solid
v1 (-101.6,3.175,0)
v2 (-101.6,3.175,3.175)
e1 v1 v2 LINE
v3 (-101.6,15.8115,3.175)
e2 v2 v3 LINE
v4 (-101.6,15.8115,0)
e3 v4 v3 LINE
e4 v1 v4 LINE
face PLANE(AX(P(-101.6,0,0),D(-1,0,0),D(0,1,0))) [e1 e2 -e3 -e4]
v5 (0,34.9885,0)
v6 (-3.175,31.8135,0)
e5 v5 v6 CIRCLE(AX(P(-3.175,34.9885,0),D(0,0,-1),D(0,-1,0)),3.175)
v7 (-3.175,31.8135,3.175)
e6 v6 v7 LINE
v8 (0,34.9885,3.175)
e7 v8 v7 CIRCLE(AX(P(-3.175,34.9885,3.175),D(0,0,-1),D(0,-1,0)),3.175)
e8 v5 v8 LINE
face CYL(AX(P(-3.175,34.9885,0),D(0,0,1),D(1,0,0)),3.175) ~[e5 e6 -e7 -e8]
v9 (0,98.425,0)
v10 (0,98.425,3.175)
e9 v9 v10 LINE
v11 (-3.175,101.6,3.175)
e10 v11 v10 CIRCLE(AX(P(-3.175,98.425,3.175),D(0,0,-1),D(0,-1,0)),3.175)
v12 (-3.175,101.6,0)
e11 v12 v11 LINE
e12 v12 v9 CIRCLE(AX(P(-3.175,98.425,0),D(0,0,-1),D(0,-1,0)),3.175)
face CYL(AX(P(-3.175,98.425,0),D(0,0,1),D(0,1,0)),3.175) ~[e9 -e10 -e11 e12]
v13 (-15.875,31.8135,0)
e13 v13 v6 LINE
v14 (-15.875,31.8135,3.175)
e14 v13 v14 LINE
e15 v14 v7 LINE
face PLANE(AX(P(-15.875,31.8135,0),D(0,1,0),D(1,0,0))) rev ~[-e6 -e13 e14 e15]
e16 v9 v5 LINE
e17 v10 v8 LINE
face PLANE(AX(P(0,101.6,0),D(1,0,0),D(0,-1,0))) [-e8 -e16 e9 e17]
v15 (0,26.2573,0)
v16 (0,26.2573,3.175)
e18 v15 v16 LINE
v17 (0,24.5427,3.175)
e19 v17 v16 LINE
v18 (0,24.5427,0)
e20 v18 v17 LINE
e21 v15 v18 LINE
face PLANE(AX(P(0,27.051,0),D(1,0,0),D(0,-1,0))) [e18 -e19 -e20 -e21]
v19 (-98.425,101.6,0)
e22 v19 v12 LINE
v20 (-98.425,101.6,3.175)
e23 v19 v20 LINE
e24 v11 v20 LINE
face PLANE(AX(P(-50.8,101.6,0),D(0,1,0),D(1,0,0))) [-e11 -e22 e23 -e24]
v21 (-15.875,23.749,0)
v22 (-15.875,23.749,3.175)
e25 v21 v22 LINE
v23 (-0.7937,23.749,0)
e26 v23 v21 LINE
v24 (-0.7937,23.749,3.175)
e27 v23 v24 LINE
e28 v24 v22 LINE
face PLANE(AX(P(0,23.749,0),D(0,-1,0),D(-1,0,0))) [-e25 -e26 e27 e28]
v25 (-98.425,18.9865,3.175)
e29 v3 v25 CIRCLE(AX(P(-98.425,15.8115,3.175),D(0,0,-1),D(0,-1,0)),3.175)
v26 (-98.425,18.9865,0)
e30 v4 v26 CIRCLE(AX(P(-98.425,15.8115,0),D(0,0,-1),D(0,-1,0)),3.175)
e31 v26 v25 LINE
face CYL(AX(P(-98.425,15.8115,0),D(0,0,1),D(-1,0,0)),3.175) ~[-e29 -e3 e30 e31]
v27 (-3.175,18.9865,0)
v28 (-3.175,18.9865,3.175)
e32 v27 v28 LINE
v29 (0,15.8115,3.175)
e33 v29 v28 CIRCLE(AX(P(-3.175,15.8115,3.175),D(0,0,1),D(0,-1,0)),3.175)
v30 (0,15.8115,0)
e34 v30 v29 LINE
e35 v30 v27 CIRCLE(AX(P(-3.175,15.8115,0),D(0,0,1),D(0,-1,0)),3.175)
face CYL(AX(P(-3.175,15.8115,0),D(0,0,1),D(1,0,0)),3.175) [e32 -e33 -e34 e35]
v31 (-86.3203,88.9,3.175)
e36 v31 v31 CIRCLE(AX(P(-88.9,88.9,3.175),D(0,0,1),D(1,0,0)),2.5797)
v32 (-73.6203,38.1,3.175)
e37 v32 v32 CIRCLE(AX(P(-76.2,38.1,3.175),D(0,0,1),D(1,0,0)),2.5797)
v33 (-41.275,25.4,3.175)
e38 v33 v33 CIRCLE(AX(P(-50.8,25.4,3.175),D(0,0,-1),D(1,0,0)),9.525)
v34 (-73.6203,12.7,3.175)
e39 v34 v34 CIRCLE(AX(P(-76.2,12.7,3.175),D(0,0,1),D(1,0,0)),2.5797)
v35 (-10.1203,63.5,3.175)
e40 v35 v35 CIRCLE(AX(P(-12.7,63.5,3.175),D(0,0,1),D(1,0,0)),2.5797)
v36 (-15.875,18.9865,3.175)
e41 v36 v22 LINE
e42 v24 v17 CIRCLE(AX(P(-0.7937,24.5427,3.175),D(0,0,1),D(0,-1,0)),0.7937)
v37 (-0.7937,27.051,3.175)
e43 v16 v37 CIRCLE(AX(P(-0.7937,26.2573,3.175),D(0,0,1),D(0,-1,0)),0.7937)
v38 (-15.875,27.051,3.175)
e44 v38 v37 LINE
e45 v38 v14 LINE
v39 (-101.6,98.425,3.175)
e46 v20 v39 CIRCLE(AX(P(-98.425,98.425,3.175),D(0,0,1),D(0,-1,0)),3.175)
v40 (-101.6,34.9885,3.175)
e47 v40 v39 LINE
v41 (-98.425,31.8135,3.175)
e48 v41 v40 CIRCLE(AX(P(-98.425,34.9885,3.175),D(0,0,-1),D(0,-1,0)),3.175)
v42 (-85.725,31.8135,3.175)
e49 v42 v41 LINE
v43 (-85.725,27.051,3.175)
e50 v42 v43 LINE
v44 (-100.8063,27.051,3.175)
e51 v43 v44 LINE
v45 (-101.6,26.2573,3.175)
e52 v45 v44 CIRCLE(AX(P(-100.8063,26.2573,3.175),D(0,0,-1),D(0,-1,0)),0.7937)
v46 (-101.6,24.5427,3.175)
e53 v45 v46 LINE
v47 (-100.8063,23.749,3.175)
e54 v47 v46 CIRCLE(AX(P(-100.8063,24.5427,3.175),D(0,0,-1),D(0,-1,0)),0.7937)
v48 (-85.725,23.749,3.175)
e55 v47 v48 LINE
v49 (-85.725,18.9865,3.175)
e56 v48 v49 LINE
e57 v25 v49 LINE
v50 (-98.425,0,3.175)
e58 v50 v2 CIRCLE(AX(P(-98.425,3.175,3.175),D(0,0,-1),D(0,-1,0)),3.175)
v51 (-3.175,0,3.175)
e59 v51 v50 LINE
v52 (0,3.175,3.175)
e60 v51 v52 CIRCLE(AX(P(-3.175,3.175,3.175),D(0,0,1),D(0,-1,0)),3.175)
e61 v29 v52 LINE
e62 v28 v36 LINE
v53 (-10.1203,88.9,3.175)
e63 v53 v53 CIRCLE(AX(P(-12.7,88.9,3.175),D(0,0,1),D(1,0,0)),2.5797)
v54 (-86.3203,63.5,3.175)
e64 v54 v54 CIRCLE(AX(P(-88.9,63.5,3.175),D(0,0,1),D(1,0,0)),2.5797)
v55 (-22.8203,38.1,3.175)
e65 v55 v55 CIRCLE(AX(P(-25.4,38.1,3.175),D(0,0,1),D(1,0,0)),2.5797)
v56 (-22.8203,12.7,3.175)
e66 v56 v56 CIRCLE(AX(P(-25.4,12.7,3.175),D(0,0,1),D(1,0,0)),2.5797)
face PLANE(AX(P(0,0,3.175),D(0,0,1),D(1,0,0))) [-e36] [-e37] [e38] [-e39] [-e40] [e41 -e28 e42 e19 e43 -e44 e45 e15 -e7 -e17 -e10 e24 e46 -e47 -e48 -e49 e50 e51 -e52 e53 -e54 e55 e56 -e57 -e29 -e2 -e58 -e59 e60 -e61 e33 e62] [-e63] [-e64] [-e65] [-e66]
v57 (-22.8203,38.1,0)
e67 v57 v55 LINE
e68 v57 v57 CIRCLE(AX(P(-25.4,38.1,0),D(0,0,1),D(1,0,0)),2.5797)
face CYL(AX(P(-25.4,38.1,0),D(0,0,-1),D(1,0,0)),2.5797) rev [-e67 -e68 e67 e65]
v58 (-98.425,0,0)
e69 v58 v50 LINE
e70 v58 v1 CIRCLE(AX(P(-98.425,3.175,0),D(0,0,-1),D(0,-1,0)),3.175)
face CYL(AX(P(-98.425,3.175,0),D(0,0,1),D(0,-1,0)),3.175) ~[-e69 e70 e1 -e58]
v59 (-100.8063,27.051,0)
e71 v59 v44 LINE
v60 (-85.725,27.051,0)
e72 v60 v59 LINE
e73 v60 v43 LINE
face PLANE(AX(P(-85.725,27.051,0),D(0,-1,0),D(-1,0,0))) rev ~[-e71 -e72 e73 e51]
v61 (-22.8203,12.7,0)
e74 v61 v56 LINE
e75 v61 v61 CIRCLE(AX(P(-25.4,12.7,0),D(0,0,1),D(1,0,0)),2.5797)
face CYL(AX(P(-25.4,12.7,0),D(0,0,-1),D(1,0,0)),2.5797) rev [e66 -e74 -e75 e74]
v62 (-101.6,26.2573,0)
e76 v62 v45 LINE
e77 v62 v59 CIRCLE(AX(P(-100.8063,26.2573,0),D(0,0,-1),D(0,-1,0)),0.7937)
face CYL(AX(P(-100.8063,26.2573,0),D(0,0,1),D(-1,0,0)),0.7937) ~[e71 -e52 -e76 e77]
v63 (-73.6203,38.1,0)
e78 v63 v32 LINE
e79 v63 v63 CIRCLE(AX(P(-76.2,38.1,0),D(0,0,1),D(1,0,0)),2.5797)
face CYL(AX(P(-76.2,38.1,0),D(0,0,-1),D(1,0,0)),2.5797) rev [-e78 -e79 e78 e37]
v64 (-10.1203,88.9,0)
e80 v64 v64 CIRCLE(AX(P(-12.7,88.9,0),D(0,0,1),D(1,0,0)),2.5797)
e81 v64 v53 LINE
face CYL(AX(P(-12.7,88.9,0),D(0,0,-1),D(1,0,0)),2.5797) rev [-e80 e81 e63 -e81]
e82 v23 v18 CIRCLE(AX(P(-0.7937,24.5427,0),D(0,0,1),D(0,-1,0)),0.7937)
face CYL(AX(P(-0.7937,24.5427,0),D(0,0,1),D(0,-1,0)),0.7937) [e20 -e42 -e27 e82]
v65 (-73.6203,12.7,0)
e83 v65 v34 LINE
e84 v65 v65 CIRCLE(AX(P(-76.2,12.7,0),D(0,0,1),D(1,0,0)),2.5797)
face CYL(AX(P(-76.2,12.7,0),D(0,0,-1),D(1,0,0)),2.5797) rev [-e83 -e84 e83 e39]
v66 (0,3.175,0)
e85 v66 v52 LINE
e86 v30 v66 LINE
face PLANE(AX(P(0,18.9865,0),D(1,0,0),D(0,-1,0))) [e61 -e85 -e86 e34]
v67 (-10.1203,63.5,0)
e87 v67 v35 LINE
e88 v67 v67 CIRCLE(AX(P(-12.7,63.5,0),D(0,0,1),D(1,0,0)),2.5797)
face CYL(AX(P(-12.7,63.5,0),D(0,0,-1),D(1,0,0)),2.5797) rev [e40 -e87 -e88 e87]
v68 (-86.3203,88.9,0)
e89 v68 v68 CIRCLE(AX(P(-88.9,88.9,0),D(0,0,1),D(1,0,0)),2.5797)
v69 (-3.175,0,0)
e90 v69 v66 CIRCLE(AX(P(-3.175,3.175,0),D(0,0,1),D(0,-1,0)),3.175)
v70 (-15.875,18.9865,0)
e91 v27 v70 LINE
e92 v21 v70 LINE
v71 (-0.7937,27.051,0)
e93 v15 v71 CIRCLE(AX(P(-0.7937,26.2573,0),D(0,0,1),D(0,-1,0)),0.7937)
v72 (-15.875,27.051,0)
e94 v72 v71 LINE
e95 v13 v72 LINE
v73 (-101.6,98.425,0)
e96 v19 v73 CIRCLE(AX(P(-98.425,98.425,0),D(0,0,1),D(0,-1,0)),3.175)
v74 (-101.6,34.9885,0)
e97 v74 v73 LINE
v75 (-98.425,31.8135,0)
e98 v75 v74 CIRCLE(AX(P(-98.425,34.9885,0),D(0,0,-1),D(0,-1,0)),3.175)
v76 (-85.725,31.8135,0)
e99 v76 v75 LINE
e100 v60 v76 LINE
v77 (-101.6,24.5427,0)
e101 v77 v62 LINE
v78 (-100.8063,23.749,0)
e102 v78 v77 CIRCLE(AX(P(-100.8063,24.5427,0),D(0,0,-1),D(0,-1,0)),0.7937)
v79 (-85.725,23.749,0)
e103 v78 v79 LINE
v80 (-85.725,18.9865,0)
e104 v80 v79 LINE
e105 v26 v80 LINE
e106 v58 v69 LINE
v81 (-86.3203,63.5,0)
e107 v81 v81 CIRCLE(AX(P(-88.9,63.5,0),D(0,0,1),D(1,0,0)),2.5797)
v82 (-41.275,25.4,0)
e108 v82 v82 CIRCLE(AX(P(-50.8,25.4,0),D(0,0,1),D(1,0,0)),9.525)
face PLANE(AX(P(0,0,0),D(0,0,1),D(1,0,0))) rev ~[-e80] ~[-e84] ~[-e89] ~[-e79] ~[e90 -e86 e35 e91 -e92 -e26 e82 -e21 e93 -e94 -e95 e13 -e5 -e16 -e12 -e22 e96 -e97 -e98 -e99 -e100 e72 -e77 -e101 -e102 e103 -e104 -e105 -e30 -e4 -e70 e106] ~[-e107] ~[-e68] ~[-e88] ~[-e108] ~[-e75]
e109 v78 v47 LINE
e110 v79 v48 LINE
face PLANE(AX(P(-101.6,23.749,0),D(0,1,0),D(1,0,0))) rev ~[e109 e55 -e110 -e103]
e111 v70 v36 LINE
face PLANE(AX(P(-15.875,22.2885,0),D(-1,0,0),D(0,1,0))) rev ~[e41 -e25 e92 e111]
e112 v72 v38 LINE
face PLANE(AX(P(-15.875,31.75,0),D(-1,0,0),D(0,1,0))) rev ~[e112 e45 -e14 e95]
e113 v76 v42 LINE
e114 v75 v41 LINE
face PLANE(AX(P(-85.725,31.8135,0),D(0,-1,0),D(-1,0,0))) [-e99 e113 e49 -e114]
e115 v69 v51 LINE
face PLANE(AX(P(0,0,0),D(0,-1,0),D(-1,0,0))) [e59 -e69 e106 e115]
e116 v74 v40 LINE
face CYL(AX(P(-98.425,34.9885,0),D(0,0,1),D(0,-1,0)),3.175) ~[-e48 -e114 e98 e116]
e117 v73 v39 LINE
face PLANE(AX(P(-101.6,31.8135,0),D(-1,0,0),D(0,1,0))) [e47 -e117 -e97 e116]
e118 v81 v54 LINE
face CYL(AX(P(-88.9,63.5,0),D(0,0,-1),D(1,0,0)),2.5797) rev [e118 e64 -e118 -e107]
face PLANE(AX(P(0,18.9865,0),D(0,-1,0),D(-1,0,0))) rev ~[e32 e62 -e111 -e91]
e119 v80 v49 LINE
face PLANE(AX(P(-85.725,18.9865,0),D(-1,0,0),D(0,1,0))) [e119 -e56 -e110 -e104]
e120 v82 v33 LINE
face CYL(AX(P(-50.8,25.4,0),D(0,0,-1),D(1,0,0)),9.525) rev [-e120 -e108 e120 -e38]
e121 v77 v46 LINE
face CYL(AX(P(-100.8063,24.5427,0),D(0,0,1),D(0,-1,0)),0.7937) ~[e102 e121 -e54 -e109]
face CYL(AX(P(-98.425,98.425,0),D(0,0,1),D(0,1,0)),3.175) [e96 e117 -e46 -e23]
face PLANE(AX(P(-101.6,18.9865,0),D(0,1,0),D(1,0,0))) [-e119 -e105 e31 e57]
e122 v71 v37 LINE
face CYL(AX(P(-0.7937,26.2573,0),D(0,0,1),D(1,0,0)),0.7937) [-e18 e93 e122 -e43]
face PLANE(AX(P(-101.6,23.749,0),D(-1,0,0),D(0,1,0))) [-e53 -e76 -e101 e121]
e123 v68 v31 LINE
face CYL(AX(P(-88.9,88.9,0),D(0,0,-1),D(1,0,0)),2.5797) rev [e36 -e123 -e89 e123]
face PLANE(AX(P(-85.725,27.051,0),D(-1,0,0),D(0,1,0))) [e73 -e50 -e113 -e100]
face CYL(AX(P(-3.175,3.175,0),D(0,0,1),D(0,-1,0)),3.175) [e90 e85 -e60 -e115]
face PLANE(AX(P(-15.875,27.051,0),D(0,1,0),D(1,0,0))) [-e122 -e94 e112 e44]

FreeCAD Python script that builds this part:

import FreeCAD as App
import Part
import Sketcher
Q = App.Units.Quantity


def edges_at(feature, points):
    """Names of the edges that pass closest to the given points."""
    edges = feature.Shape.Edges
    near = lambda p: min(range(len(edges)), key=lambda i: edges[i].distToShape(Part.Vertex(*p))[0])
    return sorted({f"Edge{near(p) + 1}" for p in points})

doc = App.newDocument("Part")
body = doc.addObject("PartDesign::Body", "Body")

# Sketch on XY plane
sketch1 = body.newObject("Sketcher::SketchObject", "Sketch")
sketch1.AttachmentSupport = (doc.getObject("XY_Plane"), [""])
sketch1.MapMode = "FlatFace"
sketch1.addGeometry([
    Part.LineSegment(App.Vector(0, 0, 0), App.Vector(0, 18.9865, 0)),  # 0
    Part.LineSegment(App.Vector(0, 18.9865, 0), App.Vector(-15.875, 18.9865, 0)),  # 1
    Part.LineSegment(App.Vector(-15.875, 18.9865, 0), App.Vector(-15.875, 23.749, 0)),  # 2
    Part.LineSegment(App.Vector(-15.875, 23.749, 0), App.Vector(0, 23.749, 0)),  # 3
    Part.LineSegment(App.Vector(0, 23.749, 0), App.Vector(0, 27.051, 0)),  # 4
    Part.LineSegment(App.Vector(0, 27.051, 0), App.Vector(-15.875, 27.051, 0)),  # 5
    Part.LineSegment(App.Vector(-15.875, 27.051, 0), App.Vector(-15.875, 31.8135, 0)),  # 6
    Part.LineSegment(App.Vector(-15.875, 31.8135, 0), App.Vector(0, 31.8135, 0)),  # 7
    Part.LineSegment(App.Vector(0, 31.8135, 0), App.Vector(0, 101.6, 0)),  # 8
    Part.LineSegment(App.Vector(0, 101.6, 0), App.Vector(-101.6, 101.6, 0)),  # 9
    Part.LineSegment(App.Vector(-101.6, 101.6, 0), App.Vector(-101.6, 31.8135, 0)),  # 10
    Part.LineSegment(App.Vector(-101.6, 31.8135, 0), App.Vector(-85.725, 31.8135, 0)),  # 11
    Part.LineSegment(App.Vector(-85.725, 31.8135, 0), App.Vector(-85.725, 27.051, 0)),  # 12
    Part.LineSegment(App.Vector(-85.725, 27.051, 0), App.Vector(-101.6, 27.051, 0)),  # 13
    Part.LineSegment(App.Vector(-101.6, 27.051, 0), App.Vector(-101.6, 23.749, 0)),  # 14
    Part.LineSegment(App.Vector(-101.6, 23.749, 0), App.Vector(-85.725, 23.749, 0)),  # 15
    Part.LineSegment(App.Vector(-85.725, 23.749, 0), App.Vector(-85.725, 18.9865, 0)),  # 16
    Part.LineSegment(App.Vector(-85.725, 18.9865, 0), App.Vector(-101.6, 18.9865, 0)),  # 17
    Part.LineSegment(App.Vector(-101.6, 18.9865, 0), App.Vector(-101.6, 0, 0)),  # 18
    Part.LineSegment(App.Vector(-101.6, 0, 0), App.Vector(0, 0, 0)),  # 19
    Part.Circle(App.Vector(-50.8, 25.4, 0), App.Vector(0, 0, 1), 9.525),  # 20
    Part.Circle(App.Vector(-25.4, 12.7, 0), App.Vector(0, 0, 1), 2.5797),  # 21
    Part.Circle(App.Vector(-25.4, 38.1, 0), App.Vector(0, 0, 1), 2.5797),  # 22
    Part.Circle(App.Vector(-12.7, 63.5, 0), App.Vector(0, 0, 1), 2.5797),  # 23
    Part.Circle(App.Vector(-12.7, 88.9, 0), App.Vector(0, 0, 1), 2.5797),  # 24
    Part.Circle(App.Vector(-76.2, 38.1, 0), App.Vector(0, 0, 1), 2.5797),  # 25
    Part.Circle(App.Vector(-88.9, 63.5, 0), App.Vector(0, 0, 1), 2.5797),  # 26
    Part.Circle(App.Vector(-88.9, 88.9, 0), App.Vector(0, 0, 1), 2.5797),  # 27
    Part.Circle(App.Vector(-76.2, 12.7, 0), App.Vector(0, 0, 1), 2.5797),  # 28
], False)
sketch1.addConstraint([
    Sketcher.Constraint("Coincident", 0, 2, 1, 1),
    Sketcher.Constraint("Coincident", 1, 2, 2, 1),
    Sketcher.Constraint("Coincident", 2, 2, 3, 1),
    Sketcher.Constraint("Coincident", 3, 2, 4, 1),
    Sketcher.Constraint("Coincident", 4, 2, 5, 1),
    Sketcher.Constraint("Coincident", 5, 2, 6, 1),
    Sketcher.Constraint("Coincident", 6, 2, 7, 1),
    Sketcher.Constraint("Coincident", 7, 2, 8, 1),
    Sketcher.Constraint("Coincident", 8, 2, 9, 1),
    Sketcher.Constraint("Coincident", 9, 2, 10, 1),
    Sketcher.Constraint("Coincident", 10, 2, 11, 1),
    Sketcher.Constraint("Coincident", 11, 2, 12, 1),
    Sketcher.Constraint("Coincident", 12, 2, 13, 1),
    Sketcher.Constraint("Coincident", 13, 2, 14, 1),
    Sketcher.Constraint("Coincident", 14, 2, 15, 1),
    Sketcher.Constraint("Coincident", 15, 2, 16, 1),
    Sketcher.Constraint("Coincident", 16, 2, 17, 1),
    Sketcher.Constraint("Coincident", 17, 2, 18, 1),
    Sketcher.Constraint("Coincident", 18, 2, 19, 1),
    Sketcher.Constraint("Coincident", 19, 2, 0, 1),
    Sketcher.Constraint("Vertical", 0),
    Sketcher.Constraint("Horizontal", 1),
    Sketcher.Constraint("Vertical", 2),
    Sketcher.Constraint("Horizontal", 3),
    Sketcher.Constraint("Vertical", 4),
    Sketcher.Constraint("Horizontal", 5),
    Sketcher.Constraint("Vertical", 6),
    Sketcher.Constraint("Horizontal", 7),
    Sketcher.Constraint("Vertical", 8),
    Sketcher.Constraint("Horizontal", 9),
    Sketcher.Constraint("Vertical", 10),
    Sketcher.Constraint("Horizontal", 11),
    Sketcher.Constraint("Vertical", 12),
    Sketcher.Constraint("Horizontal", 13),
    Sketcher.Constraint("Vertical", 14),
    Sketcher.Constraint("Horizontal", 15),
    Sketcher.Constraint("Vertical", 16),
    Sketcher.Constraint("Horizontal", 17),
    Sketcher.Constraint("Vertical", 18),
    Sketcher.Constraint("Horizontal", 19),
    Sketcher.Constraint("Coincident", 19, 2, -1, 1),
    Sketcher.Constraint("Equal", 21, 22),
    Sketcher.Constraint("Equal", 22, 23),
    Sketcher.Constraint("Equal", 23, 24),
    Sketcher.Constraint("Equal", 24, 25),
    Sketcher.Constraint("Equal", 25, 26),
    Sketcher.Constraint("Equal", 26, 27),
    Sketcher.Constraint("Equal", 27, 28),
    Sketcher.Constraint("PointOnObject", 3, 2, -2),
    Sketcher.Constraint("PointOnObject", 7, 2, -2),
    Sketcher.Constraint("Horizontal", 22, 3, 25, 3),
    Sketcher.Constraint("Horizontal", 23, 3, 26, 3),
    Sketcher.Constraint("Horizontal", 24, 3, 27, 3),
    Sketcher.Constraint("Horizontal", 21, 3, 28, 3),
    Sketcher.Constraint("Horizontal", 7, 2, 10, 2),
    Sketcher.Constraint("Horizontal", 5, 2, 12, 2),
    Sketcher.Constraint("Horizontal", 3, 2, 14, 2),
    Sketcher.Constraint("Horizontal", 1, 2, 16, 2),
    Sketcher.Constraint("Vertical", 21, 3, 22, 3),
    Sketcher.Constraint("Vertical", 23, 3, 24, 3),
    Sketcher.Constraint("Vertical", 26, 3, 27, 3),
    Sketcher.Constraint("Vertical", 25, 3, 28, 3),
    Sketcher.Constraint("Vertical", 2, 2, 5, 2),
    Sketcher.Constraint("Vertical", 10, 2, 13, 2),
    Sketcher.Constraint("Vertical", 12, 2, 15, 2),
    Sketcher.Constraint("Vertical", 14, 2, 17, 2),
    Sketcher.Constraint("Equal", 7, 11),
    Sketcher.Constraint("Equal", 2, 6),
    Sketcher.Constraint("Diameter", 20, Q("0.75 in")),
    Sketcher.Constraint("DistanceX", 9, 2, 9, 1, Q("4 in")),
    Sketcher.Constraint("Diameter", 21, Q("0.203126 in")),
    Sketcher.Constraint("DistanceX", 20, 3, -1, 1, Q("2 in")),
    Sketcher.Constraint("DistanceY", -1, 1, 20, 3, Q("1 in")),
    Sketcher.Constraint("DistanceX", 21, 3, -1, 1, Q("1 in")),
    Sketcher.Constraint("DistanceX", 25, 3, -1, 1, Q("3 in")),
    Sketcher.Constraint("DistanceY", -1, 1, 8, 2, Q("4 in")),
    Sketcher.Constraint("DistanceY", 21, 3, 22, 3, Q("1 in")),
    Sketcher.Constraint("DistanceY", 22, 3, 23, 3, Q("1 in")),
    Sketcher.Constraint("DistanceY", 23, 3, 24, 3, Q("1 in")),
    Sketcher.Constraint("DistanceX", 26, 3, 23, 3, Q("3 in")),
    Sketcher.Constraint("DistanceY", 4, 1, 4, 2, Q("0.13 in")),
    Sketcher.Constraint("DistanceY", -1, 1, 21, 3, Q("0.5 in")),
    Sketcher.Constraint("DistanceX", 23, 3, -1, 1, Q("0.5 in")),
    Sketcher.Constraint("DistanceX", 1, 2, 1, 1, Q("0.625 in")),
    Sketcher.Constraint("DistanceY", 2, 1, 2, 2, Q("0.1875 in")),
    Sketcher.Constraint("DistanceY", 0, 1, 0, 2, Q("0.7475 in")),
])
pad1 = body.newObject("PartDesign::Pad", "Pad")
pad1.Profile = sketch1
pad1.Length = Q("0.125 in")
doc.recompute()

fillet = body.newObject("PartDesign::Fillet", "Fillet")
fillet.Base = (pad1, edges_at(pad1, [
    (0, 101.6, 1.587),
    (-101.6, 101.6, 1.587),
    (0, 18.986, 1.587),
    (0, 31.814, 1.587),
    (0, 0, 1.587),
    (-101.6, 0, 1.587),
    (-101.6, 18.986, 1.587),
    (-101.6, 31.814, 1.587),
]))
fillet.Radius = Q("0.125 in")
doc.recompute()

fillet2 = body.newObject("PartDesign::Fillet", "Fillet001")
fillet2.Base = (fillet, edges_at(fillet, [
    (0, 27.051, 1.587),
    (0, 23.749, 1.587),
    (-101.6, 27.051, 1.587),
    (-101.6, 23.749, 1.587),
]))
fillet2.Radius = Q("0.031248 in")

doc.recompute()
